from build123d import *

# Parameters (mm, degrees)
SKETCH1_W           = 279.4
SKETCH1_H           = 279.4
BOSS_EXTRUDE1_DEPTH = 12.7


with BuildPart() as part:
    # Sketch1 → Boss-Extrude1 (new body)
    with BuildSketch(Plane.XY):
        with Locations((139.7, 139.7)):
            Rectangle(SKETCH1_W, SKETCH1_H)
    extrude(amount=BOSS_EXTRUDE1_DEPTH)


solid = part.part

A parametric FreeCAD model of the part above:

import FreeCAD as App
import Part
import Sketcher
from FreeCAD import Vector
Q = App.Units.Quantity


def add_polygon(sketch, points):
    """Adds a closed chain of lines whose ends are joined by coincident constraints."""
    first, n = sketch.GeometryCount, len(points)
    for a, b in zip(points, points[1:] + points[:1]):
        sketch.addGeometry(Part.LineSegment(App.Vector(*a, 0), App.Vector(*b, 0)), False)
    for i in range(n):
        sketch.addConstraint(Sketcher.Constraint("Coincident", first + i, 2, first + (i + 1) % n, 1))

doc = App.newDocument("Part")
body = doc.addObject("PartDesign::Body", "Body")

# Sketch on XY plane
sketch1 = body.newObject("Sketcher::SketchObject", "Sketch")
sketch1.AttachmentSupport = (doc.getObject("XY_Plane"), [""])
sketch1.MapMode = "FlatFace"
add_polygon(sketch1, [(0, 279), (0, 0), (279, 0), (279, 279)])  # lines 0-3
sketch1.addConstraint(Sketcher.Constraint("Vertical", 0))
sketch1.addConstraint(Sketcher.Constraint("Horizontal", 1))
sketch1.addConstraint(Sketcher.Constraint("Vertical", 2))
sketch1.addConstraint(Sketcher.Constraint("Horizontal", 3))
sketch1.addConstraint(Sketcher.Constraint("Coincident", 0, 2, -1, 1))
sketch1.addConstraint(Sketcher.Constraint("Equal", 3, 0))
sketch1.addConstraint(Sketcher.Constraint("DistanceX", 1, 1, 1, 2, Q("11 in")))
pad1 = body.newObject("PartDesign::Pad", "Pad")
pad1.Profile = sketch1
pad1.Length = Q("0.5 in")

doc.recompute()
